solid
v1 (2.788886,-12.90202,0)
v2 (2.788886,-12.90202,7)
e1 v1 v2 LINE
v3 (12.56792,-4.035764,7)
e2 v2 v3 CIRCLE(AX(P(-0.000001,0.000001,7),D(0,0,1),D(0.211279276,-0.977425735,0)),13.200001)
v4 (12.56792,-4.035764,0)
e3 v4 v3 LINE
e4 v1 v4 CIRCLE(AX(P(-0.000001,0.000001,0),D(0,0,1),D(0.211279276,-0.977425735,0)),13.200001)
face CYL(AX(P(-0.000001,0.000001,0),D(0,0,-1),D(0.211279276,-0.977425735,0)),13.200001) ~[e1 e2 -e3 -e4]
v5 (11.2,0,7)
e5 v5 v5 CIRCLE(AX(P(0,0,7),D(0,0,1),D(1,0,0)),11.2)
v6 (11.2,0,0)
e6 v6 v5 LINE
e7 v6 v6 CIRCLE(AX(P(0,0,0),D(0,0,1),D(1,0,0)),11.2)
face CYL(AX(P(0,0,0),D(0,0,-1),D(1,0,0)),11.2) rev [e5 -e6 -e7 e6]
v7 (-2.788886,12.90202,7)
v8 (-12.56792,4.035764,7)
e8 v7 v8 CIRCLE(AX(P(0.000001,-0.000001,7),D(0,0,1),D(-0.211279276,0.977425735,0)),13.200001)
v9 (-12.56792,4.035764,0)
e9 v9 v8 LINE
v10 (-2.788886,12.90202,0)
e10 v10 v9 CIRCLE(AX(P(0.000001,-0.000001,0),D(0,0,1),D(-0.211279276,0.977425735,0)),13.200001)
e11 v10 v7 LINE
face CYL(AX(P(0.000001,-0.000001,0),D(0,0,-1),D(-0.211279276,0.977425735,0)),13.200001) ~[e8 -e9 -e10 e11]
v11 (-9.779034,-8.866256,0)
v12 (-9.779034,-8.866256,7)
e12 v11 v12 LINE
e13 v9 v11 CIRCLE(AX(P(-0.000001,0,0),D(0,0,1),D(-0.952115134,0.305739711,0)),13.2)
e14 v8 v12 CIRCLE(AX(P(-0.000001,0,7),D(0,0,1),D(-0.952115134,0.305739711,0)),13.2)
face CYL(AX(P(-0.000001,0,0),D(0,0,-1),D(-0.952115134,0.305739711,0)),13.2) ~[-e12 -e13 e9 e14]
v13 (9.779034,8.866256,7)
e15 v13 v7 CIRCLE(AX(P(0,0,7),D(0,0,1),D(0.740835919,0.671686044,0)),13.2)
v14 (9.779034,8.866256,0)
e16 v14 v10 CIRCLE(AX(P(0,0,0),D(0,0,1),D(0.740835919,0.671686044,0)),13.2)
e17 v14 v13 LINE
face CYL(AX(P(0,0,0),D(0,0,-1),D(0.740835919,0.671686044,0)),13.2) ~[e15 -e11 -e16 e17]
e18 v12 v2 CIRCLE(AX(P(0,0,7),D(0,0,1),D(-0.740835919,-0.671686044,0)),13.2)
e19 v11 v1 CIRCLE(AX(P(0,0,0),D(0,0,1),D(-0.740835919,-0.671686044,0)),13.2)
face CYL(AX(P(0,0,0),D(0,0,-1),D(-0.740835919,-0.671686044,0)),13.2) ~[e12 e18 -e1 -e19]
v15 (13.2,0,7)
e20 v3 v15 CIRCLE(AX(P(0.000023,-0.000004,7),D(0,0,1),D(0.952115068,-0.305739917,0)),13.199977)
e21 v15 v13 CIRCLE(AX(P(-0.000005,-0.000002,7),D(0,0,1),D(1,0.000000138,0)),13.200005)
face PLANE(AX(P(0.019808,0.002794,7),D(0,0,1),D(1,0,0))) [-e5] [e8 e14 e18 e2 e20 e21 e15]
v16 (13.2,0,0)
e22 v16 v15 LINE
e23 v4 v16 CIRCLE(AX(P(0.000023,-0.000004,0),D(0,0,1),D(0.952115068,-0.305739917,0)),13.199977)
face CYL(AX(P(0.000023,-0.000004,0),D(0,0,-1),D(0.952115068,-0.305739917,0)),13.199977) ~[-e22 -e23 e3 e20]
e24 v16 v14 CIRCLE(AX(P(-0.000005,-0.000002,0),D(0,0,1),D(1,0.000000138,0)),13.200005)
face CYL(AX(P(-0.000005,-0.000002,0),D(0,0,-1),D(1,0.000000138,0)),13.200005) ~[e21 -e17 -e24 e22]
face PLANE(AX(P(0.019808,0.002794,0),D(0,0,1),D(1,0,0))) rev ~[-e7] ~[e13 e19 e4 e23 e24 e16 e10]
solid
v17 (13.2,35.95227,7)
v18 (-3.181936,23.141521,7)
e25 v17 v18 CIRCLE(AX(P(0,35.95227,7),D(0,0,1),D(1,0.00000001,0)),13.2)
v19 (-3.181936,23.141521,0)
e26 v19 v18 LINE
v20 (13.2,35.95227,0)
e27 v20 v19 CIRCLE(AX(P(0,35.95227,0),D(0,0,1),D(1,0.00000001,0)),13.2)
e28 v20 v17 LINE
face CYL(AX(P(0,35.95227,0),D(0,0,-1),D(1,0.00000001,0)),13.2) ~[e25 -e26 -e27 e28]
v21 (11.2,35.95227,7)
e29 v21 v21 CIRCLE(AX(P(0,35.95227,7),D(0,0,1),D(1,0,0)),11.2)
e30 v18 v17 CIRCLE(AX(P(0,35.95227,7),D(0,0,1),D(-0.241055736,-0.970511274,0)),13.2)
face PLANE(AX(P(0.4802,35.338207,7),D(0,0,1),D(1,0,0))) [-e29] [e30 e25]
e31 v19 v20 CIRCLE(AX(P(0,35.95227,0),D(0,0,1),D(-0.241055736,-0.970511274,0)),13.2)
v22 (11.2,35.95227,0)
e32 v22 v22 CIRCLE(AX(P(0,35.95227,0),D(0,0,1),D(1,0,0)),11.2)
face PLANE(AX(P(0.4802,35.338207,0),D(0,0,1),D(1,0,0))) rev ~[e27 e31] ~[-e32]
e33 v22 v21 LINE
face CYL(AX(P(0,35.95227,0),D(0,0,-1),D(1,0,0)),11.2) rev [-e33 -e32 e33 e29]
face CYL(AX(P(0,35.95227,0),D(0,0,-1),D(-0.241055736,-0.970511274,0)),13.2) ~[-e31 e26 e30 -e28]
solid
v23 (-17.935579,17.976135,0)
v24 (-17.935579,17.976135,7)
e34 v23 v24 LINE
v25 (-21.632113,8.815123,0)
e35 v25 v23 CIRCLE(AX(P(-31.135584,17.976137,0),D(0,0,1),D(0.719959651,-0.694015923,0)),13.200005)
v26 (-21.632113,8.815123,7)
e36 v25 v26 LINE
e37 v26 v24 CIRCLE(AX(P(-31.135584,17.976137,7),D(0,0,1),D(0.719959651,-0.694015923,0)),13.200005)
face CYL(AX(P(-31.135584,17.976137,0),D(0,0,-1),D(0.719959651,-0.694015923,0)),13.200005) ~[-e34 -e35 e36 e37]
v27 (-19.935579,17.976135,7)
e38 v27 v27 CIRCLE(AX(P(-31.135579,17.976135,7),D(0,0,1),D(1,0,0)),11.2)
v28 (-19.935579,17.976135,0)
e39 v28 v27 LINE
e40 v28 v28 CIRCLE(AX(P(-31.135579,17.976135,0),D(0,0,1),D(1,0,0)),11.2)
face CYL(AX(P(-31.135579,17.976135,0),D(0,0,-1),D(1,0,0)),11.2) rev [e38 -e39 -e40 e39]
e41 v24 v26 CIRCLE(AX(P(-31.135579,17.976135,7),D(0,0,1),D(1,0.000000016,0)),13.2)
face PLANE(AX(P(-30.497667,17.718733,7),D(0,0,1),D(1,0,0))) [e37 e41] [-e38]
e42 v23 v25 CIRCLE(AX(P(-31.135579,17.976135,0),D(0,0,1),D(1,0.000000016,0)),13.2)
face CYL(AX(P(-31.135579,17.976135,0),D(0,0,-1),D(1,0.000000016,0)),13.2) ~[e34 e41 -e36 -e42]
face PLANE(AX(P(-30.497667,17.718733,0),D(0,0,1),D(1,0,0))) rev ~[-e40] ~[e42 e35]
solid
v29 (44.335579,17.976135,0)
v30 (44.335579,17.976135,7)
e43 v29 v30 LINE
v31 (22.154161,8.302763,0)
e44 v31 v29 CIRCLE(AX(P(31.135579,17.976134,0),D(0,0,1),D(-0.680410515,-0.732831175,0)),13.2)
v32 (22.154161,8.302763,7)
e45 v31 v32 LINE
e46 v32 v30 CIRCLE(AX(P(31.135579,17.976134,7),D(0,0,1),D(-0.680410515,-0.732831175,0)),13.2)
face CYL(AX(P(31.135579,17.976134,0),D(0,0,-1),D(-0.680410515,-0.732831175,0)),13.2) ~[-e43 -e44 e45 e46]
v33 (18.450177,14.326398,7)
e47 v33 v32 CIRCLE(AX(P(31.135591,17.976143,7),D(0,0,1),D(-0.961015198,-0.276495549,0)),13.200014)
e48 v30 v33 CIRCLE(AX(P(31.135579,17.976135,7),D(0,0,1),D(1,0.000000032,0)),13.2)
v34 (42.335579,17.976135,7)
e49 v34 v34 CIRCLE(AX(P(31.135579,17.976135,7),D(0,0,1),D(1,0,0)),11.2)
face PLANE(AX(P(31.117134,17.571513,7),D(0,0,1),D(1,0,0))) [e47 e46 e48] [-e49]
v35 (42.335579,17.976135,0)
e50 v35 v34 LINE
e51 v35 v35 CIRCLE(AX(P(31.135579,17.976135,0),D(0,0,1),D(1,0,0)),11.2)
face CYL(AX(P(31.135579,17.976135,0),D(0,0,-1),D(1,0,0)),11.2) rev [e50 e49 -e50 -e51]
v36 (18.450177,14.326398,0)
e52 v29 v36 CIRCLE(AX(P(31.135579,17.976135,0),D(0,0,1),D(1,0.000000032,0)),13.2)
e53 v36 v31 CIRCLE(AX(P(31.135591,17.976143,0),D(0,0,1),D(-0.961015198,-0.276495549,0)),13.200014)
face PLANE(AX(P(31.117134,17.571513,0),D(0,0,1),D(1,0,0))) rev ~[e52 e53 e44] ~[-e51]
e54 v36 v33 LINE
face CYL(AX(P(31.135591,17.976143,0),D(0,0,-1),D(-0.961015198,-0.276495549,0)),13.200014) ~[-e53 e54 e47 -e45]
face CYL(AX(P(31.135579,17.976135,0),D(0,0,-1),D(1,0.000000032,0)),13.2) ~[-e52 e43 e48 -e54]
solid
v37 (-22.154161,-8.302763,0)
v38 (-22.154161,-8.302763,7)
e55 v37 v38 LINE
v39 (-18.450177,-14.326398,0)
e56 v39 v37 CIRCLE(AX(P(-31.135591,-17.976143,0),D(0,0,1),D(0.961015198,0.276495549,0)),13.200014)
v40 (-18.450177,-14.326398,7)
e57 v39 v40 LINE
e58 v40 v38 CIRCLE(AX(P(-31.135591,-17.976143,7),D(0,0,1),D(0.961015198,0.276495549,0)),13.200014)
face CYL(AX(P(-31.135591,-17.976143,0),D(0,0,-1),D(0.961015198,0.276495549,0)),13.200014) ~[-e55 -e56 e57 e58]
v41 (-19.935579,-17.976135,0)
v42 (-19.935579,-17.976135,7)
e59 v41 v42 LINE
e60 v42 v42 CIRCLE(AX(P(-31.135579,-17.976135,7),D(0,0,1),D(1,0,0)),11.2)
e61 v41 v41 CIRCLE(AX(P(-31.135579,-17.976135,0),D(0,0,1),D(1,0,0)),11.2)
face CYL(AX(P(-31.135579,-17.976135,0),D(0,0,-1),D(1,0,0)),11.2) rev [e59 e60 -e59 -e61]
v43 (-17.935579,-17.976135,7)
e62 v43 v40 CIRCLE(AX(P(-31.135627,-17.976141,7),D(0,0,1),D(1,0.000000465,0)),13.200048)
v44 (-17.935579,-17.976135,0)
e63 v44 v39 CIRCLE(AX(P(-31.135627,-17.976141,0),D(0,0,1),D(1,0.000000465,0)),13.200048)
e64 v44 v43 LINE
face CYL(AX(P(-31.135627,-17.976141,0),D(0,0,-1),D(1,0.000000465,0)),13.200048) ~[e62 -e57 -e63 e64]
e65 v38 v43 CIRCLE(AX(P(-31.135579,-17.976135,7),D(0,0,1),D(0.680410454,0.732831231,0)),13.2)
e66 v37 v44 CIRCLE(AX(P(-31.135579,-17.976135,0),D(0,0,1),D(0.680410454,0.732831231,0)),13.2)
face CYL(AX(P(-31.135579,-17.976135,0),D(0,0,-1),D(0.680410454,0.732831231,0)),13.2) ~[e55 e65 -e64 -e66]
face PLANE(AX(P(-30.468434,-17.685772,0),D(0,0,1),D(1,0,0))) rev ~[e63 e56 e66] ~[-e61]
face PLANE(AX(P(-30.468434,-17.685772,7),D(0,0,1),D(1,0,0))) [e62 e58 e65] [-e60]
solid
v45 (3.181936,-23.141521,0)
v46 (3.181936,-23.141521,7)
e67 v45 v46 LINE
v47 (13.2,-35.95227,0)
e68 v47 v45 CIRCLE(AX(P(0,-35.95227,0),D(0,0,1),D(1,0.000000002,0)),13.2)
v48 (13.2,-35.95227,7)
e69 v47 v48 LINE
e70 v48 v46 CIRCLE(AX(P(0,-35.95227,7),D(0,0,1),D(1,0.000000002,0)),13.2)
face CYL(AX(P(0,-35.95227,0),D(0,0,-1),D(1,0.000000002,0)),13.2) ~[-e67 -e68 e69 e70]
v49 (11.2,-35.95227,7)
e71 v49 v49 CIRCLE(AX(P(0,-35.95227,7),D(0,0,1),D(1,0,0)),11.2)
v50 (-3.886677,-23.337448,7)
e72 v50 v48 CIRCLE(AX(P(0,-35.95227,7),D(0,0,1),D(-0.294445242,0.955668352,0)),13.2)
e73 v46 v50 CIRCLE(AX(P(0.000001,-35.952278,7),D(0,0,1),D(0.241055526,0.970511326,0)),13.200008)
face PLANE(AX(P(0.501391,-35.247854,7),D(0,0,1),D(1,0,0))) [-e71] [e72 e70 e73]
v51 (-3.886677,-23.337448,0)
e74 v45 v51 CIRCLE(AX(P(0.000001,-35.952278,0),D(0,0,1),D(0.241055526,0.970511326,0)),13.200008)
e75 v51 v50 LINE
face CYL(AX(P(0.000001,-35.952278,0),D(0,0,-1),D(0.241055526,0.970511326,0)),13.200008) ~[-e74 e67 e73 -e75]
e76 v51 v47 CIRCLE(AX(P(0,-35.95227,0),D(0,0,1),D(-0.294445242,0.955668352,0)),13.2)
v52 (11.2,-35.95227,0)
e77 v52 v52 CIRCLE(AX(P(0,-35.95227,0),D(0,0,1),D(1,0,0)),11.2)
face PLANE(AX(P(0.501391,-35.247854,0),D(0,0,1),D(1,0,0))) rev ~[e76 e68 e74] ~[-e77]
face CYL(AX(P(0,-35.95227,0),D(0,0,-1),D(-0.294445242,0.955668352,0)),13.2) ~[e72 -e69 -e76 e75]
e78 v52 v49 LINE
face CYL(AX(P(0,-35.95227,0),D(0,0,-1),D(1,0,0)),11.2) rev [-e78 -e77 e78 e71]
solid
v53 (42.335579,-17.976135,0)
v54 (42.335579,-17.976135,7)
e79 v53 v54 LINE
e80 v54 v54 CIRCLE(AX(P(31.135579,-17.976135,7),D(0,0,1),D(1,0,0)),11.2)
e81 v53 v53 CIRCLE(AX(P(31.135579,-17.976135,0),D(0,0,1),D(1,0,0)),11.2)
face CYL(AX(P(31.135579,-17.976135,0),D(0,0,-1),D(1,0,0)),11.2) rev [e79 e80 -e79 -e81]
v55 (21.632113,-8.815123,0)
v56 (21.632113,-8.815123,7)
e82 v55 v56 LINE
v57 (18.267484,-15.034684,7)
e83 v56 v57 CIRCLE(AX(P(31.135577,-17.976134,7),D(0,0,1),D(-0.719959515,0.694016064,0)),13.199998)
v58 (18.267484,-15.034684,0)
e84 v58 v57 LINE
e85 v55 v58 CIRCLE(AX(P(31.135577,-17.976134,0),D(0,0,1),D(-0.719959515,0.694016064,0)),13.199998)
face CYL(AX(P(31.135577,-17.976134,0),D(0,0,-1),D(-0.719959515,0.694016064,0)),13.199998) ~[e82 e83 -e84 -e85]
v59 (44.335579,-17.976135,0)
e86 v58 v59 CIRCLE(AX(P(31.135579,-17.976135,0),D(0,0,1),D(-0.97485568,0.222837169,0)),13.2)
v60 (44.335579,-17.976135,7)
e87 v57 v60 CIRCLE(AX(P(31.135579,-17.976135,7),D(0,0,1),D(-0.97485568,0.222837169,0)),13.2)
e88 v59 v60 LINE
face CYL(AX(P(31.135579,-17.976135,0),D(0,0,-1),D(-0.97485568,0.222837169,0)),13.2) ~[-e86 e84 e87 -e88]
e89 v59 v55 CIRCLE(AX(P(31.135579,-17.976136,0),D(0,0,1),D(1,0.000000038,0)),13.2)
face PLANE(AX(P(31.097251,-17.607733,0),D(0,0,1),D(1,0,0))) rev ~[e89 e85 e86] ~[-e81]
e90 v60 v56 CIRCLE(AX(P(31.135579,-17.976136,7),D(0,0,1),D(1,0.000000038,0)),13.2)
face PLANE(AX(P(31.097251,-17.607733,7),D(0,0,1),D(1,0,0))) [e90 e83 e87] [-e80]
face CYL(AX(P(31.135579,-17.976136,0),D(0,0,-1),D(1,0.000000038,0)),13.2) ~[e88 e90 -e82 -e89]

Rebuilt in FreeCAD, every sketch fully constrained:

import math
import FreeCAD as App
import Part
import Sketcher

V = App.Vector
Q = App.Units.Quantity

doc = App.newDocument("Part")
body = doc.addObject("PartDesign::Body", "Body")
body.AllowCompound = True

sketch1 = body.newObject("Sketcher::SketchObject", "Sketch")
sketch1.AttachmentSupport = (doc.getObject("XY_Plane"), [""])
sketch1.MapMode = "FlatFace"
sketch1.addGeometry(Part.ArcOfCircle(Part.Circle(V(0, 35.95227, 0), V(0, 0, 1), 13.2), math.radians(0.000001), math.radians(256.05114)), False)
sketch1.addGeometry(Part.ArcOfCircle(Part.Circle(V(0, 35.95227, 0), V(0, 0, 1), 13.2), math.radians(-103.948859), math.radians(0)), False)
sketch1.addGeometry(Part.Circle(V(0, 35.95227, 0), V(0, 0, 1), 11.2), False)
sketch1.addGeometry(Part.ArcOfCircle(Part.Circle(V(-31.135579, 17.976135, 0), V(0, 0, 1), 13.2), math.radians(0.000001), math.radians(316.051141)), False)
sketch1.addGeometry(Part.ArcOfCircle(Part.Circle(V(-31.135584, 17.976137, 0), V(0, 0, 1), 13.200005), math.radians(-43.948851), math.radians(-0.000007)), False)
sketch1.addGeometry(Part.Circle(V(-31.135579, 17.976135, 0), V(0, 0, 1), 11.2), False)
sketch1.addGeometry(Part.ArcOfCircle(Part.Circle(V(-31.135627, -17.976141, 0), V(0, 0, 1), 13.200048), math.radians(0.000027), math.radians(16.051108)), False)
sketch1.addGeometry(Part.ArcOfCircle(Part.Circle(V(-31.135591, -17.976143, 0), V(0, 0, 1), 13.200014), math.radians(16.051159), math.radians(47.124259)), False)
sketch1.addGeometry(Part.ArcOfCircle(Part.Circle(V(-31.135579, -17.976135, 0), V(0, 0, 1), 13.2), math.radians(47.124274), math.radians(360.000001)), False)
sketch1.addGeometry(Part.Circle(V(-31.135579, -17.976135, 0), V(0, 0, 1), 11.2), False)
sketch1.addGeometry(Part.ArcOfCircle(Part.Circle(V(0.000023, -0.000004, 0), V(0, 0, 1), 13.199977), math.radians(-17.802685), math.radians(0.000018)), False)
sketch1.addGeometry(Part.ArcOfCircle(Part.Circle(V(-0.000005, -0.000002, 0), V(0, 0, 1), 13.200005), math.radians(0.000008), math.radians(42.197321)), False)
sketch1.addGeometry(Part.ArcOfCircle(Part.Circle(V(0, 0, 0), V(0, 0, 1), 13.2), math.radians(42.197328), math.radians(102.197329)), False)
sketch1.addGeometry(Part.ArcOfCircle(Part.Circle(V(0.000001, -0.000001, 0), V(0, 0, 1), 13.200001), math.radians(102.197332), math.radians(162.197327)), False)
sketch1.addGeometry(Part.ArcOfCircle(Part.Circle(V(-0.000001, 0, 0), V(0, 0, 1), 13.2), math.radians(162.197328), math.radians(222.197331)), False)
sketch1.addGeometry(Part.ArcOfCircle(Part.Circle(V(0, 0, 0), V(0, 0, 1), 13.2), math.radians(-137.802672), math.radians(-77.802671)), False)
sketch1.addGeometry(Part.ArcOfCircle(Part.Circle(V(-0.000001, 0.000001, 0), V(0, 0, 1), 13.200001), math.radians(-77.802668), math.radians(-17.802673)), False)
sketch1.addGeometry(Part.Circle(V(0, 0, 0), V(0, 0, 1), 11.2), False)
sketch1.addGeometry(Part.ArcOfCircle(Part.Circle(V(31.135579, 17.976135, 0), V(0, 0, 1), 13.2), math.radians(0.000002), math.radians(196.051138)), False)
sketch1.addGeometry(Part.ArcOfCircle(Part.Circle(V(31.135591, 17.976143, 0), V(0, 0, 1), 13.200014), math.radians(-163.948841), math.radians(-132.875741)), False)
sketch1.addGeometry(Part.ArcOfCircle(Part.Circle(V(31.135579, 17.976134, 0), V(0, 0, 1), 13.2), math.radians(-132.87573), math.radians(0.000004)), False)
sketch1.addGeometry(Part.Circle(V(31.135579, 17.976135, 0), V(0, 0, 1), 11.2), False)
sketch1.addGeometry(Part.ArcOfCircle(Part.Circle(V(31.135579, -17.976136, 0), V(0, 0, 1), 13.2), math.radians(0.000002), math.radians(136.051137)), False)
sketch1.addGeometry(Part.ArcOfCircle(Part.Circle(V(31.135577, -17.976134, 0), V(0, 0, 1), 13.199998), math.radians(136.051138), math.radians(167.124274)), False)
sketch1.addGeometry(Part.ArcOfCircle(Part.Circle(V(31.135579, -17.976135, 0), V(0, 0, 1), 13.2), math.radians(167.124272), math.radians(359.999998)), False)
sketch1.addGeometry(Part.Circle(V(31.135579, -17.976135, 0), V(0, 0, 1), 11.2), False)
sketch1.addGeometry(Part.ArcOfCircle(Part.Circle(V(0, -35.95227, 0), V(0, 0, 1), 13.2), math.radians(0), math.radians(76.051138)), False)
sketch1.addGeometry(Part.ArcOfCircle(Part.Circle(V(0.000001, -35.952278, 0), V(0, 0, 1), 13.200008), math.radians(76.051153), math.radians(107.124269)), False)
sketch1.addGeometry(Part.ArcOfCircle(Part.Circle(V(0, -35.95227, 0), V(0, 0, 1), 13.2), math.radians(107.124275), math.radians(360)), False)
sketch1.addGeometry(Part.Circle(V(0, -35.95227, 0), V(0, 0, 1), 11.2), False)
sketch1.addConstraint(Sketcher.Constraint("Coincident", 0, 1, 1, 2))
sketch1.addConstraint(Sketcher.Constraint("Coincident", 1, 1, 0, 2))
sketch1.addConstraint(Sketcher.Constraint("Coincident", 3, 1, 4, 2))
sketch1.addConstraint(Sketcher.Constraint("Coincident", 4, 1, 3, 2))
sketch1.addConstraint(Sketcher.Constraint("Coincident", 6, 2, 7, 1))
sketch1.addConstraint(Sketcher.Constraint("Coincident", 7, 2, 8, 1))
sketch1.addConstraint(Sketcher.Constraint("Coincident", 8, 2, 6, 1))
sketch1.addConstraint(Sketcher.Constraint("Coincident", 10, 2, 11, 1))
sketch1.addConstraint(Sketcher.Constraint("Coincident", 11, 2, 12, 1))
sketch1.addConstraint(Sketcher.Constraint("Coincident", 12, 2, 13, 1))
sketch1.addConstraint(Sketcher.Constraint("Coincident", 13, 2, 14, 1))
sketch1.addConstraint(Sketcher.Constraint("Coincident", 14, 2, 15, 1))
sketch1.addConstraint(Sketcher.Constraint("Coincident", 15, 2, 16, 1))
sketch1.addConstraint(Sketcher.Constraint("Coincident", 16, 2, 10, 1))
sketch1.addConstraint(Sketcher.Constraint("Coincident", 18, 2, 19, 1))
sketch1.addConstraint(Sketcher.Constraint("Coincident", 19, 2, 20, 1))
sketch1.addConstraint(Sketcher.Constraint("Coincident", 20, 2, 18, 1))
sketch1.addConstraint(Sketcher.Constraint("Coincident", 22, 2, 23, 1))
sketch1.addConstraint(Sketcher.Constraint("Coincident", 23, 2, 24, 1))
sketch1.addConstraint(Sketcher.Constraint("Coincident", 24, 2, 22, 1))
sketch1.addConstraint(Sketcher.Constraint("Coincident", 26, 2, 27, 1))
sketch1.addConstraint(Sketcher.Constraint("Coincident", 27, 2, 28, 1))
sketch1.addConstraint(Sketcher.Constraint("Coincident", 28, 2, 26, 1))
sketch1.addConstraint(Sketcher.Constraint("Coincident", 11, 3, -1, 1))
sketch1.addConstraint(Sketcher.Constraint("Coincident", 12, 3, -1, 1))
sketch1.addConstraint(Sketcher.Constraint("Coincident", 13, 3, -1, 1))
sketch1.addConstraint(Sketcher.Constraint("Coincident", 14, 3, -1, 1))
sketch1.addConstraint(Sketcher.Constraint("Coincident", 15, 3, -1, 1))
sketch1.addConstraint(Sketcher.Constraint("Coincident", 16, 3, -1, 1))
sketch1.addConstraint(Sketcher.Constraint("Coincident", 17, 3, -1, 1))
sketch1.addConstraint(Sketcher.Constraint("Coincident", 2, 3, 0, 3))
sketch1.addConstraint(Sketcher.Constraint("Coincident", 5, 3, 3, 3))
sketch1.addConstraint(Sketcher.Constraint("Coincident", 9, 3, 8, 3))
sketch1.addConstraint(Sketcher.Constraint("Coincident", 20, 3, 18, 3))
sketch1.addConstraint(Sketcher.Constraint("Coincident", 21, 3, 18, 3))
sketch1.addConstraint(Sketcher.Constraint("Coincident", 23, 3, 22, 3))
sketch1.addConstraint(Sketcher.Constraint("Coincident", 25, 3, 22, 3))
sketch1.addConstraint(Sketcher.Constraint("Coincident", 27, 3, 26, 3))
sketch1.addConstraint(Sketcher.Constraint("Coincident", 29, 3, 26, 3))
sketch1.addConstraint(Sketcher.Constraint("PointOnObject", 0, 3, -2))
sketch1.addConstraint(Sketcher.Constraint("PointOnObject", 1, 3, -2))
sketch1.addConstraint(Sketcher.Constraint("PointOnObject", 26, 3, -2))
sketch1.addConstraint(Sketcher.Constraint("PointOnObject", 28, 3, -2))
sketch1.addConstraint(Sketcher.Constraint("PointOnObject", 10, 2, -1))
sketch1.addConstraint(Sketcher.Constraint("Diameter", 2, Q("22.4 mm")))
sketch1.addConstraint(Sketcher.Constraint("Diameter", 5, Q("22.4 mm")))
sketch1.addConstraint(Sketcher.Constraint("Diameter", 9, Q("22.4 mm")))
sketch1.addConstraint(Sketcher.Constraint("Diameter", 17, Q("22.4 mm")))
sketch1.addConstraint(Sketcher.Constraint("Diameter", 21, Q("22.4 mm")))
sketch1.addConstraint(Sketcher.Constraint("Diameter", 25, Q("22.4 mm")))
sketch1.addConstraint(Sketcher.Constraint("Diameter", 29, Q("22.4 mm")))
sketch1.addConstraint(Sketcher.Constraint("Radius", 0, Q("13.2 mm")))
sketch1.addConstraint(Sketcher.Constraint("Radius", 3, Q("13.2 mm")))
sketch1.addConstraint(Sketcher.Constraint("Radius", 8, Q("13.2 mm")))
sketch1.addConstraint(Sketcher.Constraint("Radius", 12, Q("13.2 mm")))
sketch1.addConstraint(Sketcher.Constraint("Radius", 18, Q("13.2 mm")))
sketch1.addConstraint(Sketcher.Constraint("Radius", 22, Q("13.2 mm")))
sketch1.addConstraint(Sketcher.Constraint("Radius", 24, Q("13.2 mm")))
sketch1.addConstraint(Sketcher.Constraint("Radius", 26, Q("13.2 mm")))
sketch1.addConstraint(Sketcher.Constraint("Radius", 4, Q("13.200005 mm")))
sketch1.addConstraint(Sketcher.Constraint("Radius", 6, Q("13.200048 mm")))
sketch1.addConstraint(Sketcher.Constraint("Radius", 7, Q("13.200014 mm")))
sketch1.addConstraint(Sketcher.Constraint("Radius", 10, Q("13.199977 mm")))
sketch1.addConstraint(Sketcher.Constraint("Radius", 19, Q("13.200014 mm")))
sketch1.addConstraint(Sketcher.Constraint("DistanceX", 9, 3, 10, 3, Q("31.135602 mm")))
sketch1.addConstraint(Sketcher.Constraint("DistanceX", 8, 3, 6, 2, Q("12.685402 mm")))
sketch1.addConstraint(Sketcher.Constraint("DistanceY", 12, 2, 1, 1, Q("10.239501 mm")))
sketch1.addConstraint(Sketcher.Constraint("DistanceX", 18, 2, 18, 3, Q("12.685402 mm")))
sketch1.addConstraint(Sketcher.Constraint("DistanceY", 26, 2, 15, 2, Q("10.239501 mm")))
sketch1.addConstraint(Sketcher.Constraint("DistanceY", -1, 1, 0, 3, Q("35.95227 mm")))
sketch1.addConstraint(Sketcher.Constraint("DistanceX", 3, 3, -1, 1, Q("31.135579 mm")))
sketch1.addConstraint(Sketcher.Constraint("DistanceY", 6, 3, -1, 1, Q("17.976141 mm")))
sketch1.addConstraint(Sketcher.Constraint("DistanceX", 7, 3, -1, 1, Q("31.135591 mm")))
sketch1.addConstraint(Sketcher.Constraint("DistanceX", -1, 1, 18, 3, Q("31.135579 mm")))
sketch1.addConstraint(Sketcher.Constraint("DistanceX", -1, 1, 22, 3, Q("31.135579 mm")))
sketch1.addConstraint(Sketcher.Constraint("DistanceY", 26, 3, -1, 1, Q("35.95227 mm")))
sketch1.addConstraint(Sketcher.Constraint("DistanceY", -1, 1, 0, 1, Q("35.95227 mm")))
sketch1.addConstraint(Sketcher.Constraint("DistanceY", -1, 1, 1, 1, Q("23.141521 mm")))
sketch1.addConstraint(Sketcher.Constraint("DistanceX", 7, 2, -1, 1, Q("22.154161 mm")))
sketch1.addConstraint(Sketcher.Constraint("DistanceX", 13, 2, -1, 1, Q("12.56792 mm")))
sketch1.addConstraint(Sketcher.Constraint("DistanceY", 15, 2, -1, 1, Q("12.90202 mm")))
sketch1.addConstraint(Sketcher.Constraint("DistanceX", -1, 1, 16, 2, Q("12.56792 mm")))
sketch1.addConstraint(Sketcher.Constraint("DistanceX", -1, 1, 19, 2, Q("22.154161 mm")))
sketch1.addConstraint(Sketcher.Constraint("DistanceY", 28, 2, -1, 1, Q("35.95227 mm")))
sketch1.addConstraint(Sketcher.Constraint("DistanceY", 7, 3, 5, 3, Q("35.952278 mm")))
sketch1.addConstraint(Sketcher.Constraint("DistanceY", 10, 3, 18, 3, Q("17.976139 mm")))
sketch1.addConstraint(Sketcher.Constraint("DistanceY", 22, 3, 10, 3, Q("17.976131 mm")))
sketch1.addConstraint(Sketcher.Constraint("DistanceY", 4, 1, 3, 3, Q("9.161012 mm")))
sketch1.addConstraint(Sketcher.Constraint("DistanceY", 8, 2, 7, 2, Q("9.673372 mm")))
sketch1.addConstraint(Sketcher.Constraint("DistanceX", 10, 3, 11, 2, Q("9.779011 mm")))
sketch1.addConstraint(Sketcher.Constraint("DistanceY", 6, 2, 14, 2, Q("5.460142 mm")))
sketch1.addConstraint(Sketcher.Constraint("DistanceY", 19, 2, 20, 2, Q("9.673372 mm")))
sketch1.addConstraint(Sketcher.Constraint("DistanceY", 22, 2, 16, 2, Q("4.779359 mm")))
sketch1.addConstraint(Sketcher.Constraint("DistanceX", 23, 2, 22, 2, Q("3.364629 mm")))
sketch1.addConstraint(Sketcher.Constraint("DistanceY", 24, 2, 22, 2, Q("9.161012 mm")))
sketch1.addConstraint(Sketcher.Constraint("DistanceY", -1, 1, 3, 1, Q("17.976135 mm")))
sketch1.addConstraint(Sketcher.Constraint("DistanceX", 27, 2, -1, 1, Q("3.886677 mm")))
pad1 = body.newObject("PartDesign::Pad", "Pad")
pad1.Profile = sketch1
pad1.Length = 7

doc.recompute()
